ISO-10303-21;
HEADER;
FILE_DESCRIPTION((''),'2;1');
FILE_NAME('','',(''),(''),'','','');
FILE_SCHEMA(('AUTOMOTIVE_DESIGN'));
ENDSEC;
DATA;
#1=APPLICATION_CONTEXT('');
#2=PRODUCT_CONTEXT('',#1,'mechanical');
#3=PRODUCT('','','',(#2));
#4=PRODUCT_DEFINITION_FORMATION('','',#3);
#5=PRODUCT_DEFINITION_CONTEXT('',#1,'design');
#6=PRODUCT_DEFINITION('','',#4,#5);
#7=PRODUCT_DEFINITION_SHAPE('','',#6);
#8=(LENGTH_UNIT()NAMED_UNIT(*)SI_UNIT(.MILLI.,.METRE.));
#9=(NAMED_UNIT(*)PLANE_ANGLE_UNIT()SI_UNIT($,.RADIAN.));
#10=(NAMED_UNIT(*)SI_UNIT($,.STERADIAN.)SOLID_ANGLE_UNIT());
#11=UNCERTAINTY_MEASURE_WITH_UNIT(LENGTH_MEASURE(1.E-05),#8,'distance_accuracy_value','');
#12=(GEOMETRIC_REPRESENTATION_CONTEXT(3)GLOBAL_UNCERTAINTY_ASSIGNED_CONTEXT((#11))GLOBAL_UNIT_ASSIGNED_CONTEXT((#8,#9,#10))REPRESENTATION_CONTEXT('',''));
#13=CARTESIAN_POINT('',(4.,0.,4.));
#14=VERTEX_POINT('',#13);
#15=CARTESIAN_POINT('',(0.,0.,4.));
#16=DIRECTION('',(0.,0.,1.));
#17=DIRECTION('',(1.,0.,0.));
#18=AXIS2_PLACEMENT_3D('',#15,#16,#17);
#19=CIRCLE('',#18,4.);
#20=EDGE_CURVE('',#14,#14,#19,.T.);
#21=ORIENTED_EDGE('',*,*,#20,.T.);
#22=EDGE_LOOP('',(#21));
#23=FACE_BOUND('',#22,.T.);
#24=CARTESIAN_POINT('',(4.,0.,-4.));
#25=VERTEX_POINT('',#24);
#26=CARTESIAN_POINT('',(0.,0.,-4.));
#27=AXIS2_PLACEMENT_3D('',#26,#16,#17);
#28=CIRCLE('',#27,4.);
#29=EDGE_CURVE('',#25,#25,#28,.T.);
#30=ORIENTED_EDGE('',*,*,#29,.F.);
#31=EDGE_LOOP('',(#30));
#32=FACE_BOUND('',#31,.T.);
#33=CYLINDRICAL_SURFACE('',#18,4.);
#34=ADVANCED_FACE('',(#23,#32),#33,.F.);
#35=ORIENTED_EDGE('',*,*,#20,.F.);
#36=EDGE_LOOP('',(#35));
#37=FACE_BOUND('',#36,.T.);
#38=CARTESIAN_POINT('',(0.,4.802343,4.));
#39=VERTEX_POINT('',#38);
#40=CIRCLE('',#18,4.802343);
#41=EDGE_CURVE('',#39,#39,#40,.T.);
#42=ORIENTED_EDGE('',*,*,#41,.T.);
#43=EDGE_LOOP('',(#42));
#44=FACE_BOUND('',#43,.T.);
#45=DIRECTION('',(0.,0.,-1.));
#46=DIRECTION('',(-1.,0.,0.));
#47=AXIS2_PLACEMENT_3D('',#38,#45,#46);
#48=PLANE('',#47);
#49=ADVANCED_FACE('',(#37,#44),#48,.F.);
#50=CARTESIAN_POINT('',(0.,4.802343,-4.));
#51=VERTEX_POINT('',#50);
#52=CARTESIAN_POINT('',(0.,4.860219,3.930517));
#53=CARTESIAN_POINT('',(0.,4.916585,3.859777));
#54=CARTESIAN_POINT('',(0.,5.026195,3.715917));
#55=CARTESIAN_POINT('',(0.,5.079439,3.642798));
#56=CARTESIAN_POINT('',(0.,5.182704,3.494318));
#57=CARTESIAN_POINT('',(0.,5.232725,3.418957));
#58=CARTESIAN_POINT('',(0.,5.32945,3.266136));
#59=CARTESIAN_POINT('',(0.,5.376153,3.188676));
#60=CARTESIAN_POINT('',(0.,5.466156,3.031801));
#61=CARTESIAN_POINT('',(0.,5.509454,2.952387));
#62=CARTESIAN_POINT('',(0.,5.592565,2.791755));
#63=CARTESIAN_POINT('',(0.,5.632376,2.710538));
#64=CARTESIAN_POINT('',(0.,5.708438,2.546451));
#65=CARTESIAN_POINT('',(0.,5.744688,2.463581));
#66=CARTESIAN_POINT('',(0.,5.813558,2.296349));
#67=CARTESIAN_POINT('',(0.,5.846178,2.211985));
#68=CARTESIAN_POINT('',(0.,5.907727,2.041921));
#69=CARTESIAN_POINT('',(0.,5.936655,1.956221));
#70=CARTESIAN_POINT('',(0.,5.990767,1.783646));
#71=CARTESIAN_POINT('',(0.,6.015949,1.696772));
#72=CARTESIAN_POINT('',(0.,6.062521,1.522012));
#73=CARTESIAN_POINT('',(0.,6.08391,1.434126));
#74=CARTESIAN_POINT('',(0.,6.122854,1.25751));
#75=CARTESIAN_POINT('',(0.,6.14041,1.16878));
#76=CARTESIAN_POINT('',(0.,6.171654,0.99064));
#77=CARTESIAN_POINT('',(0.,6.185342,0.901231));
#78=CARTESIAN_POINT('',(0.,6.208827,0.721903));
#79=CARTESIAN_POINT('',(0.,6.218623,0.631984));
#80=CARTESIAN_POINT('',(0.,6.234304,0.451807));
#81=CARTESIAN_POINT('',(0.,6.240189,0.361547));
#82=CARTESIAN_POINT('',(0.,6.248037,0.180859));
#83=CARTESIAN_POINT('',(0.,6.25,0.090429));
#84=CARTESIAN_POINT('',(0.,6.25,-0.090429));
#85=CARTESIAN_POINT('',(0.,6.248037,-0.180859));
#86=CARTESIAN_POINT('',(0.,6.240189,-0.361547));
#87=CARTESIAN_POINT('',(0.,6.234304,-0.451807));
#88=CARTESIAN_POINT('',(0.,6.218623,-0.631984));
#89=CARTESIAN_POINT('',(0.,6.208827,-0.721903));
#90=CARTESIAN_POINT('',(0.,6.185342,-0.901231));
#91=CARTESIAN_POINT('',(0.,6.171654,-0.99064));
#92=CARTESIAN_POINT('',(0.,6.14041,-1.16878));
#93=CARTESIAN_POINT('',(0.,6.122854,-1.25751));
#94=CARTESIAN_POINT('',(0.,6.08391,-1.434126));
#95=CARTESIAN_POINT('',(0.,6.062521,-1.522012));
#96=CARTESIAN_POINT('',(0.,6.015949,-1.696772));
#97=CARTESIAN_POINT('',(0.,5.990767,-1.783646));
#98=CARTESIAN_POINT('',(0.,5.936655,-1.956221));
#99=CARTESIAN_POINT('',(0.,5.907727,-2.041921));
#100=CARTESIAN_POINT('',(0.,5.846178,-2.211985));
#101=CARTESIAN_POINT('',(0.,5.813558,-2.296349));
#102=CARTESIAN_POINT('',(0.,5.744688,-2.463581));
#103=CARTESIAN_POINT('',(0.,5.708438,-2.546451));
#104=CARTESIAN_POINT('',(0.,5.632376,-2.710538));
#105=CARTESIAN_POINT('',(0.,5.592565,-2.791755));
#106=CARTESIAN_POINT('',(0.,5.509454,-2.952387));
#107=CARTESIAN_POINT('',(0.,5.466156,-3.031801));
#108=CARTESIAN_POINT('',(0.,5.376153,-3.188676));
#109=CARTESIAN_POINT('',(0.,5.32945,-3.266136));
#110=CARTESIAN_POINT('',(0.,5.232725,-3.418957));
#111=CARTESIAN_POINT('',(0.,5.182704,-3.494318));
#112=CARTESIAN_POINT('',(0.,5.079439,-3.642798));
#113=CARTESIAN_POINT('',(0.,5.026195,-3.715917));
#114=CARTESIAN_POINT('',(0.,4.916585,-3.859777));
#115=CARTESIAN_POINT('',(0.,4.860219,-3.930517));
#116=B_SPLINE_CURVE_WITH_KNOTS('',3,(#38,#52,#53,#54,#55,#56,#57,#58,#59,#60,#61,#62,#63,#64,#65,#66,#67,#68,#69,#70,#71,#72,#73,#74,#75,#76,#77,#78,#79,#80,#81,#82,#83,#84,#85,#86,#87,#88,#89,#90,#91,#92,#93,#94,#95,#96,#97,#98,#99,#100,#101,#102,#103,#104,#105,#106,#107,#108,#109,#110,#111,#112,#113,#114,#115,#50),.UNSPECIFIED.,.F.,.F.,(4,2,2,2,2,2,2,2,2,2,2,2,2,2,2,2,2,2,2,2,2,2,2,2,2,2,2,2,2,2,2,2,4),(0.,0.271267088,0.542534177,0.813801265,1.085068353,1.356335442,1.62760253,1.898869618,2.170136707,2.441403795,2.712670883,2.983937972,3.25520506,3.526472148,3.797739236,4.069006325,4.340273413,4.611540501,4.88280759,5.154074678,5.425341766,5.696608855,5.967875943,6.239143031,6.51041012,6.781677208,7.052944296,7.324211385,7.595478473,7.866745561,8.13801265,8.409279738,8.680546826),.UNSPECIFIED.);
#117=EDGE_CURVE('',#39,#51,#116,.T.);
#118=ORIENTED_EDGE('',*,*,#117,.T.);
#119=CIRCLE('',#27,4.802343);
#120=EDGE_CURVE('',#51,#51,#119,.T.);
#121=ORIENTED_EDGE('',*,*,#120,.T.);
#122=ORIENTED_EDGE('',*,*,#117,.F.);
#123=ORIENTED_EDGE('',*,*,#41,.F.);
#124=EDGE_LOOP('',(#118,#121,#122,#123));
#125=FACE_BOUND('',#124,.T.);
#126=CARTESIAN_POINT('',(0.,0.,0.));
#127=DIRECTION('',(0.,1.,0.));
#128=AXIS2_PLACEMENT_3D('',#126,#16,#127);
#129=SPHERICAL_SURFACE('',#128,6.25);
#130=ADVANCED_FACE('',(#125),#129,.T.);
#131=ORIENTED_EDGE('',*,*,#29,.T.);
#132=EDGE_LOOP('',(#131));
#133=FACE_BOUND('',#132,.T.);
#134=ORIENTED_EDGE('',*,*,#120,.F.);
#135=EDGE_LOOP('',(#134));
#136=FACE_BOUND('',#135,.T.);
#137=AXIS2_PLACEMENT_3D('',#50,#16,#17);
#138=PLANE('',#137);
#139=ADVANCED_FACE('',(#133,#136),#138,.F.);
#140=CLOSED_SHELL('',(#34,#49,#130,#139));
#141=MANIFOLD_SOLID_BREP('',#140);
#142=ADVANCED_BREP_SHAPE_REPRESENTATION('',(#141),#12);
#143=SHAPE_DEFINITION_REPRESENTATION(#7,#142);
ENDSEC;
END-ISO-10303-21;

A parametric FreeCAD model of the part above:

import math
import FreeCAD as App
import Part
import Sketcher

V = App.Vector

doc = App.newDocument("Part")
body = doc.addObject("PartDesign::Body", "Body")

sketch1 = body.newObject("Sketcher::SketchObject", "Sketch")
sketch1.AttachmentSupport = (doc.getObject("YZ_Plane"), [""])
sketch1.MapMode = "FlatFace"
sketch1.addGeometry([
    Part.LineSegment(V(4, 4, 0), V(4, -4, 0)),
    Part.LineSegment(V(4, -4, 0), V(4.8, -4, 0)),
    Part.ArcOfCircle(Part.Circle(V(0, 0, 0), V(0, 0, 1), 6.2), math.radians(-40), math.radians(40)),
    Part.LineSegment(V(4.8, 4, 0), V(4, 4, 0)),
], False)
sketch1.addConstraint([
    Sketcher.Constraint("Coincident", 0, 2, 1, 1),
    Sketcher.Constraint("Coincident", 1, 2, 2, 1),
    Sketcher.Constraint("Coincident", 2, 2, 3, 1),
    Sketcher.Constraint("Coincident", 3, 2, 0, 1),
    Sketcher.Constraint("Vertical", 0),
    Sketcher.Constraint("Horizontal", 1),
    Sketcher.Constraint("Horizontal", 3),
    Sketcher.Constraint("Coincident", 2, 3, -1, 1),
    Sketcher.Constraint("Vertical", 1, 2, 2, 2),
    Sketcher.Constraint("DistanceY", 0, 2, 0, 1, 8.0),
    Sketcher.Constraint("Radius", 2, 6.25),
    Sketcher.Constraint("DistanceX", -1, 1, 0, 2, 4.0),
])
revolution = body.newObject("PartDesign::Revolution", "Revolution")
revolution.Profile = sketch1
revolution.ReferenceAxis = (sketch1, ["V_Axis"])
revolution.Angle = 360

doc.recompute()
